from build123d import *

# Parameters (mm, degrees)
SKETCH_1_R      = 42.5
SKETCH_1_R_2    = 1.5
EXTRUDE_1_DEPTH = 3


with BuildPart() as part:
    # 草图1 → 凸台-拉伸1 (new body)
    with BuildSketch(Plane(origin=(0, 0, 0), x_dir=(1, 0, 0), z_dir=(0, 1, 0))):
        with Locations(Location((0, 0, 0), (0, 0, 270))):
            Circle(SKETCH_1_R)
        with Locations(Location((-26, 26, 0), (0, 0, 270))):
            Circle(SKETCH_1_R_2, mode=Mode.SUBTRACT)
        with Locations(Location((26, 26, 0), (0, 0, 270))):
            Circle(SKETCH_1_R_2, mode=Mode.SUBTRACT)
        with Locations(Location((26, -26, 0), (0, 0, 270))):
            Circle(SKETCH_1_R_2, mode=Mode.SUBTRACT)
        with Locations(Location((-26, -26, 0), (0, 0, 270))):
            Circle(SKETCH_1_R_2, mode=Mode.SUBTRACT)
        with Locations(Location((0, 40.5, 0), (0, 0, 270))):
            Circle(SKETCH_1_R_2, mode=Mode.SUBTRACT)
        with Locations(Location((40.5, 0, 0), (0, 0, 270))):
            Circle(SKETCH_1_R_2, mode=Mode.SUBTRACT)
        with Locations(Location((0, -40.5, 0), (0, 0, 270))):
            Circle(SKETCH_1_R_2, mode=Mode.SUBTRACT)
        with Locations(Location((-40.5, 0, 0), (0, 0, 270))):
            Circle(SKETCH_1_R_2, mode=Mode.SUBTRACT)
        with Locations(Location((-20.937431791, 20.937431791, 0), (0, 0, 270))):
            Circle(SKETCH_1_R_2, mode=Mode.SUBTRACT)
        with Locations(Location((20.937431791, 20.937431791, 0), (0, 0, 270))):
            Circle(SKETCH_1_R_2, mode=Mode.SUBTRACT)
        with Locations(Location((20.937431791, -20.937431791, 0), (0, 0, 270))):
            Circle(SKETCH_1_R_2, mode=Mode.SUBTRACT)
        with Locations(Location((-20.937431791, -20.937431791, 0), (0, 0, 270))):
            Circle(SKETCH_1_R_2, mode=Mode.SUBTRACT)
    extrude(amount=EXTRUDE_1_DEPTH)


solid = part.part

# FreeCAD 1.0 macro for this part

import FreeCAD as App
import Part
import Sketcher
from FreeCAD import Vector

doc = App.newDocument("Part")
params = doc.addObject("Spreadsheet::Sheet", "Params")
for row, (alias, value) in enumerate([
    ("sketch1_diameter", "85 mm"),
    ("sketch1_diameter2", "3 mm"),
    ("pad1_length", "3 mm"),
], start=1):
    params.set(f"A{row}", alias)
    params.set(f"B{row}", "=" + value)
    params.setAlias(f"B{row}", alias)

body = doc.addObject("PartDesign::Body", "Body")

sketch1 = doc.addObject("Sketcher::SketchObject", "Sketch")
body.addObject(sketch1)
sketch1.AttachmentSupport = (doc.XZ_Plane, [""])
sketch1.MapMode = "FlatFace"
sketch1.addGeometry(Part.Circle(Vector(0, 0, 0), Vector(0, 0, 1), 42.5), False)
sketch1.addGeometry(Part.Circle(Vector(-26, -26, 0), Vector(0, 0, 1), 1.5), False)
sketch1.addGeometry(Part.Circle(Vector(0, -40.5, 0), Vector(0, 0, 1), 1.5), False)
sketch1.addGeometry(Part.Circle(Vector(-20.937432, -20.937432, 0), Vector(0, 0, 1), 1.5), False)
sketch1.addGeometry(Part.Circle(Vector(-40.5, 0, 0), Vector(0, 0, 1), 1.5), False)
sketch1.addGeometry(Part.Circle(Vector(-26, 26, 0), Vector(0, 0, 1), 1.5), False)
sketch1.addGeometry(Part.Circle(Vector(-20.937432, 20.937432, 0), Vector(0, 0, 1), 1.5), False)
sketch1.addGeometry(Part.Circle(Vector(20.937432, -20.937432, 0), Vector(0, 0, 1), 1.5), False)
sketch1.addGeometry(Part.Circle(Vector(26, -26, 0), Vector(0, 0, 1), 1.5), False)
sketch1.addGeometry(Part.Circle(Vector(40.5, 0, 0), Vector(0, 0, 1), 1.5), False)
sketch1.addGeometry(Part.Circle(Vector(20.937432, 20.937432, 0), Vector(0, 0, 1), 1.5), False)
sketch1.addGeometry(Part.Circle(Vector(0, 40.5, 0), Vector(0, 0, 1), 1.5), False)
sketch1.addGeometry(Part.Circle(Vector(26, 26, 0), Vector(0, 0, 1), 1.5), False)
sketch1.addConstraint(Sketcher.Constraint("Coincident", 0, 3, -1, 1))
sketch1.addConstraint(Sketcher.Constraint("Equal", 1, 2))
sketch1.addConstraint(Sketcher.Constraint("Equal", 2, 3))
sketch1.addConstraint(Sketcher.Constraint("Equal", 3, 4))
sketch1.addConstraint(Sketcher.Constraint("Equal", 4, 5))
sketch1.addConstraint(Sketcher.Constraint("Equal", 5, 6))
sketch1.addConstraint(Sketcher.Constraint("Equal", 6, 7))
sketch1.addConstraint(Sketcher.Constraint("Equal", 7, 8))
sketch1.addConstraint(Sketcher.Constraint("Equal", 8, 9))
sketch1.addConstraint(Sketcher.Constraint("Equal", 9, 10))
sketch1.addConstraint(Sketcher.Constraint("Equal", 10, 11))
sketch1.addConstraint(Sketcher.Constraint("Equal", 11, 12))
sketch1.addConstraint(Sketcher.Constraint("Symmetric", 6, 3, 7, 3, -1, 1))
sketch1.addConstraint(Sketcher.Constraint("Symmetric", 5, 3, 8, 3, -1, 1))
sketch1.addConstraint(Sketcher.Constraint("Symmetric", 4, 3, 9, 3, -1, 1))
sketch1.addConstraint(Sketcher.Constraint("Symmetric", 3, 3, 10, 3, -1, 1))
sketch1.addConstraint(Sketcher.Constraint("Symmetric", 2, 3, 11, 3, -1, 1))
sketch1.addConstraint(Sketcher.Constraint("Symmetric", 1, 3, 12, 3, -1, 1))
sketch1.addConstraint(Sketcher.Constraint("Symmetric", 3, 3, 7, 3, -2))
sketch1.addConstraint(Sketcher.Constraint("Symmetric", 1, 3, 8, 3, -2))
sketch1.addConstraint(Sketcher.Constraint("PointOnObject", 2, 3, -2))
sketch1.addConstraint(Sketcher.Constraint("PointOnObject", 4, 3, -1))
sketch1.addConstraint(Sketcher.Constraint("Diameter", 0, 85.0))
sketch1.addConstraint(Sketcher.Constraint("Diameter", 1, 3.0))
sketch1.addConstraint(Sketcher.Constraint("DistanceX", 1, 3, -1, 1, 26.0))
sketch1.addConstraint(Sketcher.Constraint("DistanceY", 1, 3, -1, 1, 26.0))
sketch1.addConstraint(Sketcher.Constraint("DistanceY", 2, 3, -1, 1, 40.5))
sketch1.addConstraint(Sketcher.Constraint("DistanceX", 4, 3, -1, 1, 40.5))
sketch1.addConstraint(Sketcher.Constraint("DistanceX", 3, 3, -1, 1, 20.937432))
sketch1.addConstraint(Sketcher.Constraint("DistanceY", 3, 3, -1, 1, 20.937432))
sketch1.setExpression("Constraints[22]", "Params.sketch1_diameter")
sketch1.setExpression("Constraints[23]", "Params.sketch1_diameter2")
pad1 = doc.addObject("PartDesign::Pad", "Pad")
body.addObject(pad1)
pad1.Profile = sketch1
pad1.setExpression("Length", "Params.pad1_length")
pad1.Reversed = True

doc.recompute()
